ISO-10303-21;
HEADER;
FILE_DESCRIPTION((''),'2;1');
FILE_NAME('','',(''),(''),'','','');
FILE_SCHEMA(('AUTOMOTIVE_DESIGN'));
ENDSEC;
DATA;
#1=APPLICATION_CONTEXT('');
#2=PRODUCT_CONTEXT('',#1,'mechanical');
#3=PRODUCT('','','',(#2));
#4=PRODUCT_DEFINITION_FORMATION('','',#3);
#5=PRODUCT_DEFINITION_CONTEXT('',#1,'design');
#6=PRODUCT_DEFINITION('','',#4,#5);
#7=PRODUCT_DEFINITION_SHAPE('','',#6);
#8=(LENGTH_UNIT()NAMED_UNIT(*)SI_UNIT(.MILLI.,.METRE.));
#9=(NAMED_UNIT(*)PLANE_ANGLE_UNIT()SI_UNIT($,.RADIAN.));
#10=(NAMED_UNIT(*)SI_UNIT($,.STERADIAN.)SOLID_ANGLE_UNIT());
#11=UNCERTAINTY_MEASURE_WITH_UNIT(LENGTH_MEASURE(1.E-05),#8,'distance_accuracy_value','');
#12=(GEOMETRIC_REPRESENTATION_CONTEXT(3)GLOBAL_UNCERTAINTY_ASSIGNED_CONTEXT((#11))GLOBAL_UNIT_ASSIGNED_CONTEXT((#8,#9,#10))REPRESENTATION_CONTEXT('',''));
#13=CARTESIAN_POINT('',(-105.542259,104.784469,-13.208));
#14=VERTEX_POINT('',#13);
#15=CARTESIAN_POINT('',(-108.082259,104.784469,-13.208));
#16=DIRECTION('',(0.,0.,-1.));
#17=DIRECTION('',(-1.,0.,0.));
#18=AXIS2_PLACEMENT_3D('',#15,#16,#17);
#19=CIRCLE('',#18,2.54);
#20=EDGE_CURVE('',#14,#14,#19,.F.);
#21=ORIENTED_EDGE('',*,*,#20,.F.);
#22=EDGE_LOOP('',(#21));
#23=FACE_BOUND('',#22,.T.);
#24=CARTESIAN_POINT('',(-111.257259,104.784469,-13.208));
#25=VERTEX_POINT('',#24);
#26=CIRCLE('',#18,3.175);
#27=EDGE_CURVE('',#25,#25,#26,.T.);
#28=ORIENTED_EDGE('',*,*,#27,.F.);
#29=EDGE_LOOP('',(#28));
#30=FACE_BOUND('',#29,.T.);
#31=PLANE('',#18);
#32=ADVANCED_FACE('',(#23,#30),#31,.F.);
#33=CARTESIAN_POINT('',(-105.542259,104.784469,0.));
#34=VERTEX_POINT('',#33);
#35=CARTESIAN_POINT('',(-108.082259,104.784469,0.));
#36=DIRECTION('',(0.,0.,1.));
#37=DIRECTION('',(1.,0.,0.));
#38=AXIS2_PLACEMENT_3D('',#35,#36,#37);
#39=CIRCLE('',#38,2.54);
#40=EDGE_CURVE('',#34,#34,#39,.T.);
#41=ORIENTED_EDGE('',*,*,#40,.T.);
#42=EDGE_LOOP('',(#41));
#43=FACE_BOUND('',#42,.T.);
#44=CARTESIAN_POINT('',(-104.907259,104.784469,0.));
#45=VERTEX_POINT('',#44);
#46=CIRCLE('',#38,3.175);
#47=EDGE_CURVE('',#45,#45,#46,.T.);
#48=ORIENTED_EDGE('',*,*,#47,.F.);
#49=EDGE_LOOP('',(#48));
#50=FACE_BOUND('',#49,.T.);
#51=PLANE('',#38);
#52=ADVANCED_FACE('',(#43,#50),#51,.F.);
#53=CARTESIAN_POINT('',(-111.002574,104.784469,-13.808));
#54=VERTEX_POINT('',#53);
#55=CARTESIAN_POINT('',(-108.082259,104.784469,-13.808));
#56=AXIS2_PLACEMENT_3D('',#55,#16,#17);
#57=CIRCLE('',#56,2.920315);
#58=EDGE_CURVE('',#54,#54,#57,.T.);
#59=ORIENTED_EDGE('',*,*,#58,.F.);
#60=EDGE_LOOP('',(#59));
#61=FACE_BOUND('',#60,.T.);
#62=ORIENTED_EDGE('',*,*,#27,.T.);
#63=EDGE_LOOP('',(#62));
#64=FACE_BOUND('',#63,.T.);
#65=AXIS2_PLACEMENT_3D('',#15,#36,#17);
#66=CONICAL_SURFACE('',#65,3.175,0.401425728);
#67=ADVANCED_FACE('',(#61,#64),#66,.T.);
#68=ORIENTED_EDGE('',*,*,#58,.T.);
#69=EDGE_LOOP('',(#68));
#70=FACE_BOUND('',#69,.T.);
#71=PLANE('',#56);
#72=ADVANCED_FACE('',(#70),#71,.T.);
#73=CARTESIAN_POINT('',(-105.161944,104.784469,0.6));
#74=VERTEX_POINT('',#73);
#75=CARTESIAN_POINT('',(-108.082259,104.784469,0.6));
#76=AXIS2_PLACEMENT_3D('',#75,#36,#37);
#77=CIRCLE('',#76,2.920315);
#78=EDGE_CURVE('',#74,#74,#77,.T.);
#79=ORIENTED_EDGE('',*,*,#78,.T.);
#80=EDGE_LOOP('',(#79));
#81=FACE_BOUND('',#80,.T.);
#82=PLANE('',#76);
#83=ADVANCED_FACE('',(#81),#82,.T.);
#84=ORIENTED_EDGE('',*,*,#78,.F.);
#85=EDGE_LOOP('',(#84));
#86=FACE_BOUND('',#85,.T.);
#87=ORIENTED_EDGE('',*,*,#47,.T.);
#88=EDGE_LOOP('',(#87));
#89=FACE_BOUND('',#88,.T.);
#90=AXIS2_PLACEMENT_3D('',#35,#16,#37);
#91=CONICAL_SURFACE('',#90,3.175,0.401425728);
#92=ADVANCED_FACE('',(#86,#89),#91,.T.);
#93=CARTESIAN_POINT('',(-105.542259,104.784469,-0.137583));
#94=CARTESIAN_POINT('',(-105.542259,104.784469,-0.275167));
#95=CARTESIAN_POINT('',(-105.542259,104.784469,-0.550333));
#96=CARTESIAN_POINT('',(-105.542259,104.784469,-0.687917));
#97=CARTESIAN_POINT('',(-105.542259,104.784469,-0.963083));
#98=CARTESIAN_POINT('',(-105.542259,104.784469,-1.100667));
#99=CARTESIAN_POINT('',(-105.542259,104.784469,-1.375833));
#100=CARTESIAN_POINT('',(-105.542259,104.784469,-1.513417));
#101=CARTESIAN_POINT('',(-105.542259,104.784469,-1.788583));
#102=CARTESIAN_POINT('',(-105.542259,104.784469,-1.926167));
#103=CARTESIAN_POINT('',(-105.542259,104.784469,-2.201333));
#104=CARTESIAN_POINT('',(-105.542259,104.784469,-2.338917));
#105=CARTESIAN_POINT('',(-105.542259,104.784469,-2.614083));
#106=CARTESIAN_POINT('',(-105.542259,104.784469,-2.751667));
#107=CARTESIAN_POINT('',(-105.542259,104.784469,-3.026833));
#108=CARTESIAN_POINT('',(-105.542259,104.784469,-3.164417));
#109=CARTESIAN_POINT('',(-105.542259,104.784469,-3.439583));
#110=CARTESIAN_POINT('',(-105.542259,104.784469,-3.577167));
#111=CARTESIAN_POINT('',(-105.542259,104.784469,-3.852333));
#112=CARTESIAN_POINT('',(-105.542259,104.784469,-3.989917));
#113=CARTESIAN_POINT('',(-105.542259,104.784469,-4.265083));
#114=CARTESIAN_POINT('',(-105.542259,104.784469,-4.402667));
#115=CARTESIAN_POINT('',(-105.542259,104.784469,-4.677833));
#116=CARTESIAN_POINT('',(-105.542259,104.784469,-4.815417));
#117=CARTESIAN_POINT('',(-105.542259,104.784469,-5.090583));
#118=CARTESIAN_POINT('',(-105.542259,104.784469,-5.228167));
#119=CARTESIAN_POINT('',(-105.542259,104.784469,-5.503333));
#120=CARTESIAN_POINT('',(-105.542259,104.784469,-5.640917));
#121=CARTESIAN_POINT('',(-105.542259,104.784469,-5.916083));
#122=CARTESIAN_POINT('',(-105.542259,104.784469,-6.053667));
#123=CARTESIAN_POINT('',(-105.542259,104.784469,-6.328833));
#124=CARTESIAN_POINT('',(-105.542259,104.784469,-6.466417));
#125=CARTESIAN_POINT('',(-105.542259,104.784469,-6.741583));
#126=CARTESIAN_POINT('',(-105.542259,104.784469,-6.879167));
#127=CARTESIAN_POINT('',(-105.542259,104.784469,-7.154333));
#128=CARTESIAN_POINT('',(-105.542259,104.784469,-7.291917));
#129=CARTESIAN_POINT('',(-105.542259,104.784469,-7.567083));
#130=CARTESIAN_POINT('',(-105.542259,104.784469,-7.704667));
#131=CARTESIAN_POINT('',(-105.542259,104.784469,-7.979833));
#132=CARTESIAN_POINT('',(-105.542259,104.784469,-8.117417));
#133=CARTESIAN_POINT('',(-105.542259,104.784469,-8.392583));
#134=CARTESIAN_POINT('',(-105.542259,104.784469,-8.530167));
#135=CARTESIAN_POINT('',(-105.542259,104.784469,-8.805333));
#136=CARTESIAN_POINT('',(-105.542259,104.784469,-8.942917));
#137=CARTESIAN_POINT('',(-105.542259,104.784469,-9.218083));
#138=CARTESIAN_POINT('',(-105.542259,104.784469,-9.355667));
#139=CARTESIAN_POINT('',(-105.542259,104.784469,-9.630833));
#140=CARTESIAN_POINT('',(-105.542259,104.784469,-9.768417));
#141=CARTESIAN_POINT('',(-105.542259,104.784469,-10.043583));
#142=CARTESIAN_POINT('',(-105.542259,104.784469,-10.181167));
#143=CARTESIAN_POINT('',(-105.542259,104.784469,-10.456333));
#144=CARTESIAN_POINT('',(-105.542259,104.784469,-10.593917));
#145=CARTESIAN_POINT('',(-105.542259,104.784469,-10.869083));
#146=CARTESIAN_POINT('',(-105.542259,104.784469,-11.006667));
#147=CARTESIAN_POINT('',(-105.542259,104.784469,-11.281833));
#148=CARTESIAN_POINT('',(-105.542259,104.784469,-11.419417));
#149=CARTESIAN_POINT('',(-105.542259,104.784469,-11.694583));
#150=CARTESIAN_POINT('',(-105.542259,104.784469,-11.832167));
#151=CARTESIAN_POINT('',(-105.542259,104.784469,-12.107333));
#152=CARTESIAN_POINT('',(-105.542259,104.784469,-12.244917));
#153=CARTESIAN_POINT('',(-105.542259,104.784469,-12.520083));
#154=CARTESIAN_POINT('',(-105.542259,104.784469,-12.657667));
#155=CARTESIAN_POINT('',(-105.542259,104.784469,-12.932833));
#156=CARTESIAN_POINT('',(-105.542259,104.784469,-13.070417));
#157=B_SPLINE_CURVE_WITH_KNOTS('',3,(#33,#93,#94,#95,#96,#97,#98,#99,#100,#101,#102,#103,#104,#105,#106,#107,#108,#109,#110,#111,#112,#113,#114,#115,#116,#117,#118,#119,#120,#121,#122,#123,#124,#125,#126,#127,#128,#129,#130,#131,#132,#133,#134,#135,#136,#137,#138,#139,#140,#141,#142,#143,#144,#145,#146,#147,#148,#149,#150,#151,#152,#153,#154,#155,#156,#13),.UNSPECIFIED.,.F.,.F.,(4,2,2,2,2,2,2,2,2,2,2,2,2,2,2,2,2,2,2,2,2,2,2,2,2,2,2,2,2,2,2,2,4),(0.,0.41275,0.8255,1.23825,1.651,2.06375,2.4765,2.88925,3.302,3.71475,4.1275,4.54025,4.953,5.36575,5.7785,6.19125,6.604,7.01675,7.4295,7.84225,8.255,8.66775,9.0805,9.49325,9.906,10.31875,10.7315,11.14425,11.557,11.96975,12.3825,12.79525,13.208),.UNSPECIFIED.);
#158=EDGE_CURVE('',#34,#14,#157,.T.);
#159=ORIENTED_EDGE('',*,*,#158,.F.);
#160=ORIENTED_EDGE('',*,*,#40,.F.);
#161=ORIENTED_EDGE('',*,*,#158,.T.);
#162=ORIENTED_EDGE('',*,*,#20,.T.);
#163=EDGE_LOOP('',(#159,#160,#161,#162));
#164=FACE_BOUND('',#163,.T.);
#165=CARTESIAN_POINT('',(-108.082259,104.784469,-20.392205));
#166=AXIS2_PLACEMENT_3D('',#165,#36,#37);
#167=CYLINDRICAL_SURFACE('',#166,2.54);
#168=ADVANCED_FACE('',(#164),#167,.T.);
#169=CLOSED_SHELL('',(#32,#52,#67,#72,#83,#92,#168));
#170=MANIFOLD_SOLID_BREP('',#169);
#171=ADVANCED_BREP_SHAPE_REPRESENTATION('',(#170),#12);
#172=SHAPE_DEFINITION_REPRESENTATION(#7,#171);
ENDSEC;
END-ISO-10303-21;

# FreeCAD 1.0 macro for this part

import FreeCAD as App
import Part
import Sketcher
Q = App.Units.Quantity

doc = App.newDocument("Part")
params = doc.addObject("Spreadsheet::Sheet", "Params")
for row, (alias, value) in enumerate([
    ("sketch1_diameter", "0.2 in"),
    ("pad1_length", "0.52 in"),
    ("sketch2_diameter", "0.25 in"),
    ("pad2_length", "0.6 mm"),
    ("pad2_taper", "-23 deg"),
    ("sketch3_diameter", "0.25 in"),
    ("pad3_length", "0.6 mm"),
    ("pad3_taper", "-23 deg"),
], start=1):
    params.set(f"A{row}", alias)
    params.set(f"B{row}", "=" + value)
    params.setAlias(f"B{row}", alias)

body = doc.addObject("PartDesign::Body", "Body")

# Sketch on XY plane
sketch1 = body.newObject("Sketcher::SketchObject", "Sketch")
sketch1.AttachmentSupport = (doc.getObject("XY_Plane"), [""])
sketch1.MapMode = "FlatFace"
sketch1.addGeometry(Part.Circle(App.Vector(-108.1, 104.8, 0), App.Vector(0, 0, 1), 2.5), False)
sketch1.addConstraint([
    Sketcher.Constraint("Diameter", 0, Q("0.2 in")),
    Sketcher.Constraint("DistanceX", 0, 3, -1, 1, Q("108.082259 mm")),
    Sketcher.Constraint("DistanceY", -1, 1, 0, 3, Q("104.784469 mm")),
])
sketch1.setExpression("Constraints[0]", "Params.sketch1_diameter")
pad1 = body.newObject("PartDesign::Pad", "Pad")
pad1.Profile = sketch1
pad1.setExpression("Length", "Params.pad1_length")
pad1.Reversed = True

# Sketch on XY plane
sketch2 = body.newObject("Sketcher::SketchObject", "Sketch001")
sketch2.AttachmentSupport = (doc.getObject("XY_Plane"), [""])
sketch2.MapMode = "FlatFace"
sketch2.addGeometry(Part.Circle(App.Vector(-108.1, 104.8, 0), App.Vector(0, 0, 1), 3.2), False)
sketch2.addConstraint([
    Sketcher.Constraint("Diameter", 0, Q("0.25 in")),
    Sketcher.Constraint("DistanceX", 0, 3, -1, 1, Q("108.082259 mm")),
    Sketcher.Constraint("DistanceY", -1, 1, 0, 3, Q("104.784469 mm")),
])
sketch2.setExpression("Constraints[0]", "Params.sketch2_diameter")
pad2 = body.newObject("PartDesign::Pad", "Pad001")
pad2.Profile = sketch2
pad2.setExpression("Length", "Params.pad2_length")
pad2.setExpression("TaperAngle", "Params.pad2_taper")

# Sketch on XY plane
sketch3 = body.newObject("Sketcher::SketchObject", "Sketch002")
sketch3.AttachmentSupport = (doc.getObject("XY_Plane"), [""])
sketch3.MapMode = "FlatFace"
sketch3.AttachmentOffset = App.Placement(App.Vector(0, 0, -0.52 * 25.4), App.Rotation())
sketch3.addGeometry(Part.Circle(App.Vector(-108.1, 104.8, 0), App.Vector(0, 0, 1), 3.2), False)
sketch3.addConstraint([
    Sketcher.Constraint("Diameter", 0, Q("0.25 in")),
    Sketcher.Constraint("DistanceX", 0, 3, -1, 1, Q("108.082259 mm")),
    Sketcher.Constraint("DistanceY", -1, 1, 0, 3, Q("104.784469 mm")),
])
sketch3.setExpression("Constraints[0]", "Params.sketch3_diameter")
pad3 = body.newObject("PartDesign::Pad", "Pad002")
pad3.Profile = sketch3
pad3.setExpression("Length", "Params.pad3_length")
pad3.Reversed = True
pad3.setExpression("TaperAngle", "Params.pad3_taper")

doc.recompute()
